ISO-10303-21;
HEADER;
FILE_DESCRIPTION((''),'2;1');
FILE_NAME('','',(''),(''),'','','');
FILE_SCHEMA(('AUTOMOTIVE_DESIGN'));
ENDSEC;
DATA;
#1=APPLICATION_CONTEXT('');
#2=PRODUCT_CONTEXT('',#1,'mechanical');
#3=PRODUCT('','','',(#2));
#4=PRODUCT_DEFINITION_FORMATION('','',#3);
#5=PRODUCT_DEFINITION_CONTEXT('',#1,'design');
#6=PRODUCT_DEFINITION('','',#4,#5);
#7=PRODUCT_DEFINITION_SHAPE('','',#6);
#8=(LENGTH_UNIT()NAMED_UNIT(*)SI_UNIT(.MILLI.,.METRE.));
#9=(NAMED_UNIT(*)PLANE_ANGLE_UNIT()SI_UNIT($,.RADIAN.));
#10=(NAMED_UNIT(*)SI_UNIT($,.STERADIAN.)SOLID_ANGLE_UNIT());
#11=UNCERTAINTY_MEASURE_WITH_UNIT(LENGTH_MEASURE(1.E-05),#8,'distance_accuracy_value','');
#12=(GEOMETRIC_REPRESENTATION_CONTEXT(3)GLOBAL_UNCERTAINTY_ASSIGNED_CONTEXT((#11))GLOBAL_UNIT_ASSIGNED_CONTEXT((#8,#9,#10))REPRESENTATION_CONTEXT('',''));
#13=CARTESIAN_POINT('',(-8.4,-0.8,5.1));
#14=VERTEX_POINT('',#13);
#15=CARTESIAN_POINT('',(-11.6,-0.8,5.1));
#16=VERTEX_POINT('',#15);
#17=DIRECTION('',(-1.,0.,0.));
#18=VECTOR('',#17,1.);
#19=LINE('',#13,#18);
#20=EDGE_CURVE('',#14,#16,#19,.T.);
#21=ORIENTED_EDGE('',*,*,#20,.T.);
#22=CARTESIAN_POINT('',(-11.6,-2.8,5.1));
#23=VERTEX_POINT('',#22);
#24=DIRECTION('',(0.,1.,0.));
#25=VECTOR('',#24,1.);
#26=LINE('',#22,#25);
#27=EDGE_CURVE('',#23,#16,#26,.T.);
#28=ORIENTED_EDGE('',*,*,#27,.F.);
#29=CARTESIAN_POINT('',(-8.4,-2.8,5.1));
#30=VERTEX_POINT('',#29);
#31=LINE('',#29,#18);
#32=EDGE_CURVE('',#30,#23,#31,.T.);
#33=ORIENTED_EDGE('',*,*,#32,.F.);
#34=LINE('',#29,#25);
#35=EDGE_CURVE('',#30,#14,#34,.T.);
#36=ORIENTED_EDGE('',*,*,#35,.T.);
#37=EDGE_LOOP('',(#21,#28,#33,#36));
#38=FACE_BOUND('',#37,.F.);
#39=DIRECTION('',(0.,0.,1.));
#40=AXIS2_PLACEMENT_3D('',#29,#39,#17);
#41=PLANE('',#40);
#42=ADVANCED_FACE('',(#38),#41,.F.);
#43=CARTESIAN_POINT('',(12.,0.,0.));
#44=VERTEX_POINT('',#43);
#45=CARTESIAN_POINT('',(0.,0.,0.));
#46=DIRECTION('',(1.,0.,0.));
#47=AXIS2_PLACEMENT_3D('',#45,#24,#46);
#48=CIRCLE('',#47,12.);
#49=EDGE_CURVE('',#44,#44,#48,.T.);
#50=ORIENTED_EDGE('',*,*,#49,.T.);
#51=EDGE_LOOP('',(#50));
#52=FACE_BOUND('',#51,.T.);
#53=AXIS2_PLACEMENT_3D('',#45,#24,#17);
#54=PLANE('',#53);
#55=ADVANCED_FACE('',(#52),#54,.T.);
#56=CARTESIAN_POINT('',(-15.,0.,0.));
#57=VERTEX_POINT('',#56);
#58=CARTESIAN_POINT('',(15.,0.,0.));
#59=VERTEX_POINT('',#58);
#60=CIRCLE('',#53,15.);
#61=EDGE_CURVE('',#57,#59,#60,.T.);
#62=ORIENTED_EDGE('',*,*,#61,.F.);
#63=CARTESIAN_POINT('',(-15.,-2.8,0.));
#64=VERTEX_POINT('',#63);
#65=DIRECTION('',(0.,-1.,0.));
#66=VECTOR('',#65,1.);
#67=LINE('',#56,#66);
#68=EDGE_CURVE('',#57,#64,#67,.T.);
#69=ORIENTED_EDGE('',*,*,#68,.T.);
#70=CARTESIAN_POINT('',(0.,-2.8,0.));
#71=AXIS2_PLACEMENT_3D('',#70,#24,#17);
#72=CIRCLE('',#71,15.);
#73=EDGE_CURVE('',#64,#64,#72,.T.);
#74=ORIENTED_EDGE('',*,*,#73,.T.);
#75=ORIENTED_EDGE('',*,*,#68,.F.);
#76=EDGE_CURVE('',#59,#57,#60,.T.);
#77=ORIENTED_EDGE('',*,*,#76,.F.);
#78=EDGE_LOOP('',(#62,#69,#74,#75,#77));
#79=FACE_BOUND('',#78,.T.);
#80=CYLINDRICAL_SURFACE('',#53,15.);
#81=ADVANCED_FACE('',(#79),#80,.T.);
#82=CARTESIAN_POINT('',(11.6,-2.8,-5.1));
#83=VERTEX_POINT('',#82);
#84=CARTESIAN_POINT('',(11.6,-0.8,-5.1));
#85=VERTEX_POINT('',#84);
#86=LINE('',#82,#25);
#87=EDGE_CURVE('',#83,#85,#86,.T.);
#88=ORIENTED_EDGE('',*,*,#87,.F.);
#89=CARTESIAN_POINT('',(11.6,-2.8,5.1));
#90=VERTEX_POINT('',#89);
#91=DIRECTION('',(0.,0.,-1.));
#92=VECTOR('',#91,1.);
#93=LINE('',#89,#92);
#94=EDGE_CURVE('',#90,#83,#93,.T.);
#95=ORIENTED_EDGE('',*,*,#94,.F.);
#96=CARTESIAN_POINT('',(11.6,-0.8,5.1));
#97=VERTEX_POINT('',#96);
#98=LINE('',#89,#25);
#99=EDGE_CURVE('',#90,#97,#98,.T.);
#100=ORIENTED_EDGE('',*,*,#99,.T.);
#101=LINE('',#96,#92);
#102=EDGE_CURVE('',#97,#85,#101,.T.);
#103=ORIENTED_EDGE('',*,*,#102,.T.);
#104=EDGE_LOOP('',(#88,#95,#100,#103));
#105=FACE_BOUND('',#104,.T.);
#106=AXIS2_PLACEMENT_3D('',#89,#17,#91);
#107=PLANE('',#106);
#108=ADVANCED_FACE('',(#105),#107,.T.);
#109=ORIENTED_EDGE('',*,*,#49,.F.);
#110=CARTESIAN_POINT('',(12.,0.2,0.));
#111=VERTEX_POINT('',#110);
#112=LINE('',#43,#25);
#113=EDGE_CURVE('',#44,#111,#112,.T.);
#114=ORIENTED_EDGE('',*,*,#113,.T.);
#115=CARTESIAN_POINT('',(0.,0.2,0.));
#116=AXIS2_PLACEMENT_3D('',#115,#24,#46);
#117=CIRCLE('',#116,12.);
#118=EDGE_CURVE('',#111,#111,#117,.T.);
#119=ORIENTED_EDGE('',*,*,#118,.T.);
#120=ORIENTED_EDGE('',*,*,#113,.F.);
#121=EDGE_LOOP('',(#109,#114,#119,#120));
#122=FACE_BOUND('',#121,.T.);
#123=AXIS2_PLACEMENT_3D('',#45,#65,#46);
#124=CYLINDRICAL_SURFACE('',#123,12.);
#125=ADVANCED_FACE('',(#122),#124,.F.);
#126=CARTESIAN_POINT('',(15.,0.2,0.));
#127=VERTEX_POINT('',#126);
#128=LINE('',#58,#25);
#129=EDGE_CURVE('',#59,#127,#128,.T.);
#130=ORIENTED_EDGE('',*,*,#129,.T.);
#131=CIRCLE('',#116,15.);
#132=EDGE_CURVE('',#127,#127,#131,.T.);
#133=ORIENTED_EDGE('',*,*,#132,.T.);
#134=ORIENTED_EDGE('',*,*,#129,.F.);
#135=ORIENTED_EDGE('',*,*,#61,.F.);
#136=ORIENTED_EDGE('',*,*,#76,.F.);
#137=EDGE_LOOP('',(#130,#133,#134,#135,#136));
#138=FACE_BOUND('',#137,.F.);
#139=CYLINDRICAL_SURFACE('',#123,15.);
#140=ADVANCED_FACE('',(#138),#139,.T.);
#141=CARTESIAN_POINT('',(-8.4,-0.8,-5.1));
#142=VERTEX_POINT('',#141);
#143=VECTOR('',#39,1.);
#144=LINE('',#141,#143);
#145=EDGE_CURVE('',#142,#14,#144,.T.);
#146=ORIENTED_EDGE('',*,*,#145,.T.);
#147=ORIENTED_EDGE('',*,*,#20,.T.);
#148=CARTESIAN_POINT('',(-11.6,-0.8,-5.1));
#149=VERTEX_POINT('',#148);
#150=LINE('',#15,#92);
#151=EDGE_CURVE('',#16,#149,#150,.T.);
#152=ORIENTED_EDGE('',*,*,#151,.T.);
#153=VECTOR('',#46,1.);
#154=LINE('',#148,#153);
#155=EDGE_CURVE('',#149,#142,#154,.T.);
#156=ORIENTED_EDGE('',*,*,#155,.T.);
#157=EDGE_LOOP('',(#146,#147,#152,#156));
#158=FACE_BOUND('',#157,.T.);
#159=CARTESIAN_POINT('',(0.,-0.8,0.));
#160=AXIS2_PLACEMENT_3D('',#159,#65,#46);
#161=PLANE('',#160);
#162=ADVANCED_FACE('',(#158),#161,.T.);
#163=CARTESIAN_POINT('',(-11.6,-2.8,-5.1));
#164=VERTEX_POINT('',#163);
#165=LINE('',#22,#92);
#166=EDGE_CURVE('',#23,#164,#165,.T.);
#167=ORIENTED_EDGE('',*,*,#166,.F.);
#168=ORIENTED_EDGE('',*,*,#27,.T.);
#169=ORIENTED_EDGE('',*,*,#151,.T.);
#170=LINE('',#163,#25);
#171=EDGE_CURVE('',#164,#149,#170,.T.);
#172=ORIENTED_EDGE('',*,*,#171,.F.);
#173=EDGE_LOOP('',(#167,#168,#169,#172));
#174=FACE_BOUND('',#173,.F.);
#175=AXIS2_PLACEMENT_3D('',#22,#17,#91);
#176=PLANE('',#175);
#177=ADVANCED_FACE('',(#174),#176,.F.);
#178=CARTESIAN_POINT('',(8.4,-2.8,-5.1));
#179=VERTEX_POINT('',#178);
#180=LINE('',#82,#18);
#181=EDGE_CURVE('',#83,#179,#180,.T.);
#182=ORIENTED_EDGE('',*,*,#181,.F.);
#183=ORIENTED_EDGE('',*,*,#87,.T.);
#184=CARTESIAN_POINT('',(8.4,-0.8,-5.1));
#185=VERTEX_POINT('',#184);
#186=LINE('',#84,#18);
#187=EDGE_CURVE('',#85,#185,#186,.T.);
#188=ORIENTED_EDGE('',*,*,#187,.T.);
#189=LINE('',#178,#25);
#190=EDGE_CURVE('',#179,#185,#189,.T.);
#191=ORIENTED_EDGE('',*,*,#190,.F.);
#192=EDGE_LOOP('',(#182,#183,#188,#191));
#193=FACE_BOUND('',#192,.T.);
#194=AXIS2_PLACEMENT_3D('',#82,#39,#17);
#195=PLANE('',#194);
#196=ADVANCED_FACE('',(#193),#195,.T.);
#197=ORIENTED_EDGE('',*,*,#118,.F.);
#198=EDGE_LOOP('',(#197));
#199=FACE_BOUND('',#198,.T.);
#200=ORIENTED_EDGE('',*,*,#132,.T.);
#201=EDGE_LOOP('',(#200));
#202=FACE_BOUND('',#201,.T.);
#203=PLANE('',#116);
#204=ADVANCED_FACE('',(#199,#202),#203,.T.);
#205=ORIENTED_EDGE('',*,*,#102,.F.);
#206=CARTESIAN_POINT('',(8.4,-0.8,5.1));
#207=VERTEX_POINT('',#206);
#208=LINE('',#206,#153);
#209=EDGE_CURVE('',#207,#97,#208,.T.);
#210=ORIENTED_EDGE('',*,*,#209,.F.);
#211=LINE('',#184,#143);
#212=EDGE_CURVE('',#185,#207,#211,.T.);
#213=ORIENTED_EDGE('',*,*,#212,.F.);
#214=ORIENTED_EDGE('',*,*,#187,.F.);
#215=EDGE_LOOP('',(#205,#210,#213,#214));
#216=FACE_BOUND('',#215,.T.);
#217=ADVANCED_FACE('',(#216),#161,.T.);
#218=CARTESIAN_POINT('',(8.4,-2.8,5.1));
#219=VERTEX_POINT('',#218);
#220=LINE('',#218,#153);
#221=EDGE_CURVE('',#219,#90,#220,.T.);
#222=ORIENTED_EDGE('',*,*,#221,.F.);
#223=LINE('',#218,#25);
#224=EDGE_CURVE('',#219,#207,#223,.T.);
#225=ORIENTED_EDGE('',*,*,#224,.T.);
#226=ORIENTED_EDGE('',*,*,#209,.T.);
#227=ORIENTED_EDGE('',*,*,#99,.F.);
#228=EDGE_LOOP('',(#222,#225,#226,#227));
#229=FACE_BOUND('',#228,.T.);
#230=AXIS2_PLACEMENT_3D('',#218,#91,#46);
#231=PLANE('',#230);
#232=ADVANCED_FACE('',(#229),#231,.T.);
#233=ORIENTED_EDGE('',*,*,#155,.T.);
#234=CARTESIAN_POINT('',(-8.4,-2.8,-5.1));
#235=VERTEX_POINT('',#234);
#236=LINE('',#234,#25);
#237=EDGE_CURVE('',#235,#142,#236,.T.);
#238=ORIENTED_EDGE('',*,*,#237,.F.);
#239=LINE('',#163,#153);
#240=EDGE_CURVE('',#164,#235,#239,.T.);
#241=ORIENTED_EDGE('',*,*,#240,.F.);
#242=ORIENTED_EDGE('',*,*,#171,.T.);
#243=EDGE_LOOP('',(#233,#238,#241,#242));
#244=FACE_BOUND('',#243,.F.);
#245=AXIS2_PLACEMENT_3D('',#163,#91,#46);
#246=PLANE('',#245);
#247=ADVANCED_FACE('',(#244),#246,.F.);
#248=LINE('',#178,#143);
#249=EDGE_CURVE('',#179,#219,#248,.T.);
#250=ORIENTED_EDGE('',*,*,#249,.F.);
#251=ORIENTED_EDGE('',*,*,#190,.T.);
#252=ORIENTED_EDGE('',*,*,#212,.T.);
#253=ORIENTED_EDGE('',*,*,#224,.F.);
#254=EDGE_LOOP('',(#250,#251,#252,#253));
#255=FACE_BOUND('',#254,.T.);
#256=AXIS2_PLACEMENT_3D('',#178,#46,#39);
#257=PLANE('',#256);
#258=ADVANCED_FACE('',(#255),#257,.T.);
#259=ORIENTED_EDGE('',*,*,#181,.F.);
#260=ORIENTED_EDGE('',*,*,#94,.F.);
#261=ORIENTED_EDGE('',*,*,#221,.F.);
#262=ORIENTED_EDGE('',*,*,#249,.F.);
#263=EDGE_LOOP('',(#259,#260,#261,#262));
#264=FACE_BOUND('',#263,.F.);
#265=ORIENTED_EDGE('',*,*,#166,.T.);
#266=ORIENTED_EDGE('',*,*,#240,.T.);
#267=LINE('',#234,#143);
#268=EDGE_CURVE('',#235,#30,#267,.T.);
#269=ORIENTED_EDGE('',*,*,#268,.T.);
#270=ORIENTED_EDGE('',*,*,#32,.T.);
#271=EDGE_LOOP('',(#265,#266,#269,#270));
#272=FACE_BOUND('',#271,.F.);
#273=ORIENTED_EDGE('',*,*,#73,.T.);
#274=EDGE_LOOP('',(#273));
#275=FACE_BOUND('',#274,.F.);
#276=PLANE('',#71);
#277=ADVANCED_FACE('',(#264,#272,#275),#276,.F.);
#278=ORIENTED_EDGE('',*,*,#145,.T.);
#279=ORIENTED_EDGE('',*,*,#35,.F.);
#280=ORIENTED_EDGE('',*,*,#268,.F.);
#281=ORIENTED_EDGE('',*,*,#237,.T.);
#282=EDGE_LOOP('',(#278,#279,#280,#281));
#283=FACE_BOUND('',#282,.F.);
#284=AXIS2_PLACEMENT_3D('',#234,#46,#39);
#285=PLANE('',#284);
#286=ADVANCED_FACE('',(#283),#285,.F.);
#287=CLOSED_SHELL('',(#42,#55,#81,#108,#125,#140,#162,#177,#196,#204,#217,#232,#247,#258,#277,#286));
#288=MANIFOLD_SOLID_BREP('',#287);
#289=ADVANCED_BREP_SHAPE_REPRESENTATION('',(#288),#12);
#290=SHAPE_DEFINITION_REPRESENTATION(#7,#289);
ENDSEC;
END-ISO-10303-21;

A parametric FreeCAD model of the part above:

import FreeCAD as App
import Part
import Sketcher

V = App.Vector


def add_polygon(sketch, points):
    """Adds a closed chain of lines whose ends are joined by coincident constraints."""
    first, n = sketch.GeometryCount, len(points)
    for a, b in zip(points, points[1:] + points[:1]):
        sketch.addGeometry(Part.LineSegment(App.Vector(*a, 0), App.Vector(*b, 0)), False)
    for i in range(n):
        sketch.addConstraint(Sketcher.Constraint("Coincident", first + i, 2, first + (i + 1) % n, 1))

doc = App.newDocument("Part")
params = doc.addObject("Spreadsheet::Sheet", "Params")
for row, (alias, value) in enumerate([
    ("sketch1_diameter", "30 mm"),
    ("pad1_length", "2.8 mm"),
    ("sketch2_diameter", "30 mm"),
    ("sketch2_diameter2", "24 mm"),
    ("pad2_length", "0.2 mm"),
    ("sketch3_width", "3.2 mm"),
    ("sketch3_height", "10.2 mm"),
    ("pocket1_length", "2 mm"),
], start=1):
    params.set(f"A{row}", alias)
    params.set(f"B{row}", "=" + value)
    params.setAlias(f"B{row}", alias)

body = doc.addObject("PartDesign::Body", "Body")

sketch1 = body.newObject("Sketcher::SketchObject", "Sketch")
sketch1.AttachmentSupport = (doc.getObject("XZ_Plane"), [""])
sketch1.MapMode = "FlatFace"
sketch1.addGeometry(Part.Circle(V(0, 0, 0), V(0, 0, 1), 15), False)
sketch1.addConstraint([
    Sketcher.Constraint("Coincident", 0, 3, -1, 1),
    Sketcher.Constraint("Diameter", 0, 30.0),
])
sketch1.setExpression("Constraints[1]", "Params.sketch1_diameter")
pad1 = body.newObject("PartDesign::Pad", "Pad")
pad1.Profile = sketch1
pad1.setExpression("Length", "Params.pad1_length")

sketch2 = body.newObject("Sketcher::SketchObject", "Sketch001")
sketch2.AttachmentSupport = (doc.getObject("XZ_Plane"), [""])
sketch2.MapMode = "FlatFace"
sketch2.addGeometry([
    Part.Circle(V(0, 0, 0), V(0, 0, 1), 15),
    Part.Circle(V(0, 0, 0), V(0, 0, 1), 12),
], False)
sketch2.addConstraint([
    Sketcher.Constraint("Coincident", 0, 3, -1, 1),
    Sketcher.Constraint("Coincident", 1, 3, -1, 1),
    Sketcher.Constraint("Diameter", 0, 30.0),
    Sketcher.Constraint("Diameter", 1, 24.0),
])
sketch2.setExpression("Constraints[2]", "Params.sketch2_diameter")
sketch2.setExpression("Constraints[3]", "Params.sketch2_diameter2")
pad2 = body.newObject("PartDesign::Pad", "Pad001")
pad2.Profile = sketch2
pad2.setExpression("Length", "Params.pad2_length")
pad2.Reversed = True

sketch3 = body.newObject("Sketcher::SketchObject", "Sketch002")
sketch3.AttachmentSupport = (doc.getObject("XZ_Plane"), [""])
sketch3.MapMode = "FlatFace"
sketch3.AttachmentOffset = App.Placement(V(0, 0, 2.8), App.Rotation())
add_polygon(sketch3, [(-11.6, 5.1), (-11.6, -5.1), (-8.4, -5.1), (-8.4, 5.1)])
add_polygon(sketch3, [(8.4, -5.1), (11.6, -5.1), (11.6, 5.1), (8.4, 5.1)])
sketch3.addConstraint([
    Sketcher.Constraint("Vertical", 0),
    Sketcher.Constraint("Horizontal", 1),
    Sketcher.Constraint("Vertical", 2),
    Sketcher.Constraint("Horizontal", 3),
    Sketcher.Constraint("Horizontal", 4),
    Sketcher.Constraint("Vertical", 5),
    Sketcher.Constraint("Horizontal", 6),
    Sketcher.Constraint("Vertical", 7),
    Sketcher.Constraint("Symmetric", 3, 2, 4, 2, -1, 1),
    Sketcher.Constraint("Symmetric", 1, 2, 6, 2, -1, 1),
    Sketcher.Constraint("Horizontal", 1, 2, 4, 2),
    Sketcher.Constraint("DistanceX", 1, 1, 1, 2, 3.2),
    Sketcher.Constraint("DistanceY", 0, 2, 0, 1, 10.2),
    Sketcher.Constraint("DistanceX", 1, 2, 4, 2, 20.0),
])
sketch3.setExpression("Constraints[19]", "Params.sketch3_width")
sketch3.setExpression("Constraints[20]", "Params.sketch3_height")
pocket1 = body.newObject("PartDesign::Pocket", "Pocket")
pocket1.Profile = sketch3
pocket1.setExpression("Length", "Params.pocket1_length")

doc.recompute()
